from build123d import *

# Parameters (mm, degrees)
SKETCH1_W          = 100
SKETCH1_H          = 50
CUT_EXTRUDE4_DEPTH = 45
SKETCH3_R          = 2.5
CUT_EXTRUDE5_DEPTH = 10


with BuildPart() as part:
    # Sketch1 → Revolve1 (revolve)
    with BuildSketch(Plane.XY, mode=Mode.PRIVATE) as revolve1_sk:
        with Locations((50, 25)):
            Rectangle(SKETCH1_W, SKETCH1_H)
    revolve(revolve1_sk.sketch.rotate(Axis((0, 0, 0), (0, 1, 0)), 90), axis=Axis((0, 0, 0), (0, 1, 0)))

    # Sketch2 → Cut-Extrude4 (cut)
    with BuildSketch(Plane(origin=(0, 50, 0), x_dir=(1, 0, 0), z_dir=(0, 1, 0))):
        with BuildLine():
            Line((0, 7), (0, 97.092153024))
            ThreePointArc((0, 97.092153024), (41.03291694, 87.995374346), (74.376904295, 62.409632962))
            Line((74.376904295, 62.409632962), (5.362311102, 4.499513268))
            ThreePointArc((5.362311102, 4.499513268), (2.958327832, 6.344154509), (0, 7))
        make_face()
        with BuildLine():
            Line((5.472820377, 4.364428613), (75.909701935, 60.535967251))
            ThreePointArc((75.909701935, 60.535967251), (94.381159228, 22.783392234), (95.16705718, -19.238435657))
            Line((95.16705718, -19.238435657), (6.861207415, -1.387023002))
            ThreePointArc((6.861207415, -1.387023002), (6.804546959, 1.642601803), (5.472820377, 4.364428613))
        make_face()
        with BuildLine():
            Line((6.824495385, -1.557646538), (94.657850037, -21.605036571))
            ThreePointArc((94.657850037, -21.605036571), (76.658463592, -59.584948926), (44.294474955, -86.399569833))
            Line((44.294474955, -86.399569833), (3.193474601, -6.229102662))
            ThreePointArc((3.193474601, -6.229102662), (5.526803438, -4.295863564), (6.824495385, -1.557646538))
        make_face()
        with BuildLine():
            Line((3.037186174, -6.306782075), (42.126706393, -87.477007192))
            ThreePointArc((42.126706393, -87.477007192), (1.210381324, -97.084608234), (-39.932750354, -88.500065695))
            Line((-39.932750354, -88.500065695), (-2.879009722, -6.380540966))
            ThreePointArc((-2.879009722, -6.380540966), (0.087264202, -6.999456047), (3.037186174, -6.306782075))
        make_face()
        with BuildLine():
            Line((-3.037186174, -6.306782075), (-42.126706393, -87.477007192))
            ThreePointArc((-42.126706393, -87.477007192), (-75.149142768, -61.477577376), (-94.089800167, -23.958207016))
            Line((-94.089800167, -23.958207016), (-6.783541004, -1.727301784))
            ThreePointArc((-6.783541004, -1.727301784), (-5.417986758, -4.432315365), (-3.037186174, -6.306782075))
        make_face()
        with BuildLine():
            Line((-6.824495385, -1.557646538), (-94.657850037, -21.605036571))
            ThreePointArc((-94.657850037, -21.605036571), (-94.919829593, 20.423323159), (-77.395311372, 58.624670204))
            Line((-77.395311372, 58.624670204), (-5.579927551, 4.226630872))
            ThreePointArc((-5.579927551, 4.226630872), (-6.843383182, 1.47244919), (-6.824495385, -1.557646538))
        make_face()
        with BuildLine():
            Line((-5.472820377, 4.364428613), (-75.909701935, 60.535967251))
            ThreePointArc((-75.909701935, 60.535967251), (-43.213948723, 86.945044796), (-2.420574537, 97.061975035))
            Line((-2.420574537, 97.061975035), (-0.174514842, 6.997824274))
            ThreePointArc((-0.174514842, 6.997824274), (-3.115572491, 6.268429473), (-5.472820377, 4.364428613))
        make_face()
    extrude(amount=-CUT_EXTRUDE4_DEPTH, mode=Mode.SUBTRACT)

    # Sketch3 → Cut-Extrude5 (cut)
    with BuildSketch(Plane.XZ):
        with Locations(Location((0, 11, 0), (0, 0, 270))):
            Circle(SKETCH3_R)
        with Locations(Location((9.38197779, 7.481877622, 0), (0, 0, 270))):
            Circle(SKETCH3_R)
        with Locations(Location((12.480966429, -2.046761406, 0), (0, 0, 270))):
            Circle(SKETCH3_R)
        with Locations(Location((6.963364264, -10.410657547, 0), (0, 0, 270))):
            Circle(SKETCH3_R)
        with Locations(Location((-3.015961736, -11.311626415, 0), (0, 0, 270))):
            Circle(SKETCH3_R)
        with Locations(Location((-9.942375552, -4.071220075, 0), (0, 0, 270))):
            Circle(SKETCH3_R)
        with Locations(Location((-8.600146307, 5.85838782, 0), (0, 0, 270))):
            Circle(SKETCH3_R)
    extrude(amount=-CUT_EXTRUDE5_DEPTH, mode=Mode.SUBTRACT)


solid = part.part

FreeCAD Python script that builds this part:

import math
import FreeCAD as App
import Part
import Sketcher

V = App.Vector
Q = App.Units.Quantity

doc = App.newDocument("Part")
body = doc.addObject("PartDesign::Body", "Body")

sketch1 = body.newObject("Sketcher::SketchObject", "Sketch")
sketch1.AttachmentSupport = (doc.getObject("XY_Plane"), [""])
sketch1.MapMode = "FlatFace"
sketch1.addGeometry([
    Part.LineSegment(V(0, 50, 0), V(0, 0, 0)),
    Part.LineSegment(V(0, 0, 0), V(100, 0, 0)),
    Part.LineSegment(V(100, 0, 0), V(100, 50, 0)),
    Part.LineSegment(V(100, 50, 0), V(0, 50, 0)),
], False)
sketch1.addConstraint([
    Sketcher.Constraint("Coincident", 0, 2, 1, 1),
    Sketcher.Constraint("Coincident", 1, 2, 2, 1),
    Sketcher.Constraint("Coincident", 2, 2, 3, 1),
    Sketcher.Constraint("Coincident", 3, 2, 0, 1),
    Sketcher.Constraint("Vertical", 0),
    Sketcher.Constraint("Horizontal", 1),
    Sketcher.Constraint("Vertical", 2),
    Sketcher.Constraint("Horizontal", 3),
    Sketcher.Constraint("Coincident", 0, 2, -1, 1),
    Sketcher.Constraint("DistanceX", 1, 1, 1, 2, Q("100 mm")),
    Sketcher.Constraint("DistanceY", 0, 2, 0, 1, Q("50 mm")),
])
revolution = body.newObject("PartDesign::Revolution", "Revolution")
revolution.Profile = sketch1
revolution.ReferenceAxis = (sketch1, ["V_Axis"])
revolution.Angle = 360

sketch2 = body.newObject("Sketcher::SketchObject", "Sketch001")
sketch2.AttachmentSupport = (doc.getObject("XZ_Plane"), [""])
sketch2.MapMode = "FlatFace"
sketch2.AttachmentOffset = App.Placement(V(0, 0, -50), App.Rotation())
sketch2.addGeometry([
    Part.LineSegment(V(0, -97, 0), V(0, -7, 0)),
    Part.ArcOfCircle(Part.Circle(V(0, 0, 0), V(0, 0, 1), 7), math.radians(-90), math.radians(-40)),
    Part.LineSegment(V(5, -4, 0), V(74, -62, 0)),
    Part.ArcOfCircle(Part.Circle(V(0, 0, 0), V(0, 0, 1), 97), math.radians(-90), math.radians(-40)),
    Part.LineSegment(V(76, -61, 0), V(5, -4, 0)),
    Part.ArcOfCircle(Part.Circle(V(0, 0, 0), V(0, 0, 1), 7), math.radians(-39), math.radians(11)),
    Part.LineSegment(V(7, 1, 0), V(95, 19, 0)),
    Part.ArcOfCircle(Part.Circle(V(0, 0, 0), V(0, 0, 1), 97), math.radians(-39), math.radians(11)),
    Part.LineSegment(V(95, 22, 0), V(7, 2, 0)),
    Part.ArcOfCircle(Part.Circle(V(0, 0, 0), V(0, 0, 1), 7), math.radians(13), math.radians(63)),
    Part.LineSegment(V(3, 6, 0), V(44, 86, 0)),
    Part.ArcOfCircle(Part.Circle(V(0, 0, 0), V(0, 0, 1), 97), math.radians(13), math.radians(63)),
    Part.LineSegment(V(42, 87, 0), V(3, 6, 0)),
    Part.ArcOfCircle(Part.Circle(V(0, 0, 0), V(0, 0, 1), 7), math.radians(64), math.radians(114)),
    Part.LineSegment(V(-3, 6, 0), V(-40, 89, 0)),
    Part.ArcOfCircle(Part.Circle(V(0, 0, 0), V(0, 0, 1), 97), math.radians(64), math.radians(114)),
    Part.LineSegment(V(-42, 87, 0), V(-3, 6, 0)),
    Part.ArcOfCircle(Part.Circle(V(0, 0, 0), V(0, 0, 1), 7), math.radians(116), math.radians(166)),
    Part.LineSegment(V(-7, 2, 0), V(-94, 24, 0)),
    Part.ArcOfCircle(Part.Circle(V(0, 0, 0), V(0, 0, 1), 97), math.radians(116), math.radians(166)),
    Part.LineSegment(V(-95, 22, 0), V(-7, 2, 0)),
    Part.ArcOfCircle(Part.Circle(V(0, 0, 0), V(0, 0, 1), 7), math.radians(167), math.radians(217)),
    Part.LineSegment(V(-6, -4, 0), V(-77, -59, 0)),
    Part.ArcOfCircle(Part.Circle(V(0, 0, 0), V(0, 0, 1), 97), math.radians(167), math.radians(217)),
    Part.LineSegment(V(-76, -61, 0), V(-5, -4, 0)),
    Part.ArcOfCircle(Part.Circle(V(0, 0, 0), V(0, 0, 1), 7), math.radians(-141), math.radians(-91)),
    Part.LineSegment(V(0, -7, 0), V(-2, -97, 0)),
    Part.ArcOfCircle(Part.Circle(V(0, 0, 0), V(0, 0, 1), 97), math.radians(-141), math.radians(-91)),
], False)
sketch2.addConstraint([
    Sketcher.Constraint("Coincident", 0, 2, 1, 1),
    Sketcher.Constraint("Coincident", 1, 2, 2, 1),
    Sketcher.Constraint("Coincident", 2, 2, 3, 2),
    Sketcher.Constraint("Coincident", 3, 1, 0, 1),
    Sketcher.Constraint("Coincident", 4, 2, 5, 1),
    Sketcher.Constraint("Coincident", 5, 2, 6, 1),
    Sketcher.Constraint("Coincident", 6, 2, 7, 2),
    Sketcher.Constraint("Coincident", 7, 1, 4, 1),
    Sketcher.Constraint("Coincident", 8, 2, 9, 1),
    Sketcher.Constraint("Coincident", 9, 2, 10, 1),
    Sketcher.Constraint("Coincident", 10, 2, 11, 2),
    Sketcher.Constraint("Coincident", 11, 1, 8, 1),
    Sketcher.Constraint("Coincident", 12, 2, 13, 1),
    Sketcher.Constraint("Coincident", 13, 2, 14, 1),
    Sketcher.Constraint("Coincident", 14, 2, 15, 2),
    Sketcher.Constraint("Coincident", 15, 1, 12, 1),
    Sketcher.Constraint("Coincident", 16, 2, 17, 1),
    Sketcher.Constraint("Coincident", 17, 2, 18, 1),
    Sketcher.Constraint("Coincident", 18, 2, 19, 2),
    Sketcher.Constraint("Coincident", 19, 1, 16, 1),
    Sketcher.Constraint("Coincident", 20, 2, 21, 1),
    Sketcher.Constraint("Coincident", 21, 2, 22, 1),
    Sketcher.Constraint("Coincident", 22, 2, 23, 2),
    Sketcher.Constraint("Coincident", 23, 1, 20, 1),
    Sketcher.Constraint("Coincident", 24, 2, 25, 1),
    Sketcher.Constraint("Coincident", 25, 2, 26, 1),
    Sketcher.Constraint("Coincident", 26, 2, 27, 2),
    Sketcher.Constraint("Coincident", 27, 1, 24, 1),
    Sketcher.Constraint("Vertical", 0),
    Sketcher.Constraint("Coincident", 1, 3, -1, 1),
    Sketcher.Constraint("Coincident", 3, 3, -1, 1),
    Sketcher.Constraint("Coincident", 5, 3, -1, 1),
    Sketcher.Constraint("Coincident", 7, 3, -1, 1),
    Sketcher.Constraint("Coincident", 9, 3, -1, 1),
    Sketcher.Constraint("Coincident", 11, 3, -1, 1),
    Sketcher.Constraint("Coincident", 13, 3, -1, 1),
    Sketcher.Constraint("Coincident", 15, 3, -1, 1),
    Sketcher.Constraint("Coincident", 17, 3, -1, 1),
    Sketcher.Constraint("Coincident", 19, 3, -1, 1),
    Sketcher.Constraint("Coincident", 21, 3, -1, 1),
    Sketcher.Constraint("Coincident", 23, 3, -1, 1),
    Sketcher.Constraint("Coincident", 25, 3, -1, 1),
    Sketcher.Constraint("Coincident", 27, 3, -1, 1),
    Sketcher.Constraint("Equal", 1, 5),
    Sketcher.Constraint("Equal", 3, 7),
    Sketcher.Constraint("Equal", 5, 9),
    Sketcher.Constraint("Equal", 7, 11),
    Sketcher.Constraint("Equal", 9, 13),
    Sketcher.Constraint("Equal", 11, 15),
    Sketcher.Constraint("Equal", 13, 17),
    Sketcher.Constraint("Equal", 15, 19),
    Sketcher.Constraint("Equal", 17, 21),
    Sketcher.Constraint("Equal", 19, 23),
    Sketcher.Constraint("Equal", 21, 25),
    Sketcher.Constraint("Equal", 23, 27),
    Sketcher.Constraint("PointOnObject", 0, 2, -2),
    Sketcher.Constraint("Horizontal", 12, 2, 16, 2),
    Sketcher.Constraint("Horizontal", 15, 1, 19, 1),
    Sketcher.Constraint("Horizontal", 8, 2, 20, 2),
    Sketcher.Constraint("Horizontal", 11, 1, 23, 1),
    Sketcher.Constraint("Horizontal", 4, 2, 24, 2),
    Sketcher.Constraint("Horizontal", 7, 1, 27, 1),
    Sketcher.Constraint("Radius", 1, Q("7 mm")),
    Sketcher.Constraint("Angle", 2, Q("-40 deg")),
    Sketcher.Constraint("Radius", 3, Q("97.092153 mm")),
    Sketcher.Constraint("DistanceX", 9, 2, 10, 2, Q("41.101 mm")),
    Sketcher.Constraint("DistanceX", -1, 1, 7, 1, Q("75.909702 mm")),
    Sketcher.Constraint("DistanceY", -1, 1, 17, 2, Q("1.727302 mm")),
    Sketcher.Constraint("DistanceX", 18, 2, -1, 1, Q("94.0898 mm")),
    Sketcher.Constraint("DistanceY", 6, 2, 11, 1, Q("2.366601 mm")),
    Sketcher.Constraint("DistanceY", 18, 2, 19, 1, Q("63.5188 mm")),
    Sketcher.Constraint("DistanceX", 23, 1, 14, 2, Q("54.7251 mm")),
    Sketcher.Constraint("DistanceX", -1, 1, 1, 2, Q("5.362311 mm")),
    Sketcher.Constraint("DistanceX", -1, 1, 4, 2, Q("5.47282 mm")),
    Sketcher.Constraint("DistanceY", -1, 1, 10, 2, Q("86.39957 mm")),
    Sketcher.Constraint("DistanceX", -1, 1, 11, 1, Q("94.65785 mm")),
    Sketcher.Constraint("DistanceX", 13, 2, -1, 1, Q("2.87901 mm")),
    Sketcher.Constraint("DistanceY", 21, 2, -1, 1, Q("4.226631 mm")),
    Sketcher.Constraint("DistanceX", 22, 2, -1, 1, Q("77.395311 mm")),
    Sketcher.Constraint("DistanceY", 4, 2, 5, 2, Q("5.751452 mm")),
    Sketcher.Constraint("DistanceY", 1, 2, 8, 2, Q("6.05716 mm")),
    Sketcher.Constraint("DistanceX", 12, 2, 9, 2, Q("0.156288 mm")),
    Sketcher.Constraint("DistanceY", 25, 2, 1, 2, Q("2.498311 mm")),
    Sketcher.Constraint("DistanceX", 26, 2, 2, 2, Q("76.797479 mm")),
])
pocket1 = body.newObject("PartDesign::Pocket", "Pocket")
pocket1.Profile = sketch2
pocket1.Length = 45
pocket1.Reversed = True

sketch3 = body.newObject("Sketcher::SketchObject", "Sketch002")
sketch3.AttachmentSupport = (doc.getObject("XZ_Plane"), [""])
sketch3.MapMode = "FlatFace"
sketch3.addGeometry([
    Part.Circle(V(0, 11, 0), V(0, 0, 1), 2.5),
    Part.Circle(V(9.4, 7.5, 0), V(0, 0, 1), 2.5),
    Part.Circle(V(12.5, -2, 0), V(0, 0, 1), 2.5),
    Part.Circle(V(7, -10.4, 0), V(0, 0, 1), 2.5),
    Part.Circle(V(-3, -11.3, 0), V(0, 0, 1), 2.5),
    Part.Circle(V(-9.9, -4.1, 0), V(0, 0, 1), 2.5),
    Part.Circle(V(-8.6, 5.9, 0), V(0, 0, 1), 2.5),
], False)
sketch3.addConstraint([
    Sketcher.Constraint("Equal", 0, 1),
    Sketcher.Constraint("Equal", 1, 2),
    Sketcher.Constraint("Equal", 2, 3),
    Sketcher.Constraint("Equal", 3, 4),
    Sketcher.Constraint("Equal", 4, 5),
    Sketcher.Constraint("Equal", 5, 6),
    Sketcher.Constraint("PointOnObject", 0, 3, -2),
    Sketcher.Constraint("Diameter", 0, Q("5 mm")),
    Sketcher.Constraint("DistanceY", -1, 1, 0, 3, Q("11 mm")),
    Sketcher.Constraint("DistanceY", 2, 3, -1, 1, Q("2.046761 mm")),
    Sketcher.Constraint("DistanceX", 4, 3, -1, 1, Q("3.015962 mm")),
    Sketcher.Constraint("DistanceY", 5, 3, -1, 1, Q("4.07122 mm")),
    Sketcher.Constraint("DistanceX", 1, 3, 2, 3, Q("3.098989 mm")),
    Sketcher.Constraint("DistanceY", 2, 3, 1, 3, Q("9.528639 mm")),
    Sketcher.Constraint("DistanceY", 4, 3, 3, 3, Q("0.900969 mm")),
    Sketcher.Constraint("DistanceX", 4, 3, 2, 3, Q("15.496928 mm")),
    Sketcher.Constraint("DistanceX", 5, 3, 3, 3, Q("16.90574 mm")),
    Sketcher.Constraint("DistanceX", 5, 3, 2, 3, Q("22.423342 mm")),
    Sketcher.Constraint("DistanceX", 5, 3, 6, 3, Q("1.342229 mm")),
    Sketcher.Constraint("DistanceY", 6, 3, 1, 3, Q("1.62349 mm")),
    Sketcher.Constraint("DistanceY", 3, 3, -1, 1, Q("10.410658 mm")),
])
pocket2 = body.newObject("PartDesign::Pocket", "Pocket001")
pocket2.Profile = sketch3
pocket2.Length = 10

doc.recompute()
